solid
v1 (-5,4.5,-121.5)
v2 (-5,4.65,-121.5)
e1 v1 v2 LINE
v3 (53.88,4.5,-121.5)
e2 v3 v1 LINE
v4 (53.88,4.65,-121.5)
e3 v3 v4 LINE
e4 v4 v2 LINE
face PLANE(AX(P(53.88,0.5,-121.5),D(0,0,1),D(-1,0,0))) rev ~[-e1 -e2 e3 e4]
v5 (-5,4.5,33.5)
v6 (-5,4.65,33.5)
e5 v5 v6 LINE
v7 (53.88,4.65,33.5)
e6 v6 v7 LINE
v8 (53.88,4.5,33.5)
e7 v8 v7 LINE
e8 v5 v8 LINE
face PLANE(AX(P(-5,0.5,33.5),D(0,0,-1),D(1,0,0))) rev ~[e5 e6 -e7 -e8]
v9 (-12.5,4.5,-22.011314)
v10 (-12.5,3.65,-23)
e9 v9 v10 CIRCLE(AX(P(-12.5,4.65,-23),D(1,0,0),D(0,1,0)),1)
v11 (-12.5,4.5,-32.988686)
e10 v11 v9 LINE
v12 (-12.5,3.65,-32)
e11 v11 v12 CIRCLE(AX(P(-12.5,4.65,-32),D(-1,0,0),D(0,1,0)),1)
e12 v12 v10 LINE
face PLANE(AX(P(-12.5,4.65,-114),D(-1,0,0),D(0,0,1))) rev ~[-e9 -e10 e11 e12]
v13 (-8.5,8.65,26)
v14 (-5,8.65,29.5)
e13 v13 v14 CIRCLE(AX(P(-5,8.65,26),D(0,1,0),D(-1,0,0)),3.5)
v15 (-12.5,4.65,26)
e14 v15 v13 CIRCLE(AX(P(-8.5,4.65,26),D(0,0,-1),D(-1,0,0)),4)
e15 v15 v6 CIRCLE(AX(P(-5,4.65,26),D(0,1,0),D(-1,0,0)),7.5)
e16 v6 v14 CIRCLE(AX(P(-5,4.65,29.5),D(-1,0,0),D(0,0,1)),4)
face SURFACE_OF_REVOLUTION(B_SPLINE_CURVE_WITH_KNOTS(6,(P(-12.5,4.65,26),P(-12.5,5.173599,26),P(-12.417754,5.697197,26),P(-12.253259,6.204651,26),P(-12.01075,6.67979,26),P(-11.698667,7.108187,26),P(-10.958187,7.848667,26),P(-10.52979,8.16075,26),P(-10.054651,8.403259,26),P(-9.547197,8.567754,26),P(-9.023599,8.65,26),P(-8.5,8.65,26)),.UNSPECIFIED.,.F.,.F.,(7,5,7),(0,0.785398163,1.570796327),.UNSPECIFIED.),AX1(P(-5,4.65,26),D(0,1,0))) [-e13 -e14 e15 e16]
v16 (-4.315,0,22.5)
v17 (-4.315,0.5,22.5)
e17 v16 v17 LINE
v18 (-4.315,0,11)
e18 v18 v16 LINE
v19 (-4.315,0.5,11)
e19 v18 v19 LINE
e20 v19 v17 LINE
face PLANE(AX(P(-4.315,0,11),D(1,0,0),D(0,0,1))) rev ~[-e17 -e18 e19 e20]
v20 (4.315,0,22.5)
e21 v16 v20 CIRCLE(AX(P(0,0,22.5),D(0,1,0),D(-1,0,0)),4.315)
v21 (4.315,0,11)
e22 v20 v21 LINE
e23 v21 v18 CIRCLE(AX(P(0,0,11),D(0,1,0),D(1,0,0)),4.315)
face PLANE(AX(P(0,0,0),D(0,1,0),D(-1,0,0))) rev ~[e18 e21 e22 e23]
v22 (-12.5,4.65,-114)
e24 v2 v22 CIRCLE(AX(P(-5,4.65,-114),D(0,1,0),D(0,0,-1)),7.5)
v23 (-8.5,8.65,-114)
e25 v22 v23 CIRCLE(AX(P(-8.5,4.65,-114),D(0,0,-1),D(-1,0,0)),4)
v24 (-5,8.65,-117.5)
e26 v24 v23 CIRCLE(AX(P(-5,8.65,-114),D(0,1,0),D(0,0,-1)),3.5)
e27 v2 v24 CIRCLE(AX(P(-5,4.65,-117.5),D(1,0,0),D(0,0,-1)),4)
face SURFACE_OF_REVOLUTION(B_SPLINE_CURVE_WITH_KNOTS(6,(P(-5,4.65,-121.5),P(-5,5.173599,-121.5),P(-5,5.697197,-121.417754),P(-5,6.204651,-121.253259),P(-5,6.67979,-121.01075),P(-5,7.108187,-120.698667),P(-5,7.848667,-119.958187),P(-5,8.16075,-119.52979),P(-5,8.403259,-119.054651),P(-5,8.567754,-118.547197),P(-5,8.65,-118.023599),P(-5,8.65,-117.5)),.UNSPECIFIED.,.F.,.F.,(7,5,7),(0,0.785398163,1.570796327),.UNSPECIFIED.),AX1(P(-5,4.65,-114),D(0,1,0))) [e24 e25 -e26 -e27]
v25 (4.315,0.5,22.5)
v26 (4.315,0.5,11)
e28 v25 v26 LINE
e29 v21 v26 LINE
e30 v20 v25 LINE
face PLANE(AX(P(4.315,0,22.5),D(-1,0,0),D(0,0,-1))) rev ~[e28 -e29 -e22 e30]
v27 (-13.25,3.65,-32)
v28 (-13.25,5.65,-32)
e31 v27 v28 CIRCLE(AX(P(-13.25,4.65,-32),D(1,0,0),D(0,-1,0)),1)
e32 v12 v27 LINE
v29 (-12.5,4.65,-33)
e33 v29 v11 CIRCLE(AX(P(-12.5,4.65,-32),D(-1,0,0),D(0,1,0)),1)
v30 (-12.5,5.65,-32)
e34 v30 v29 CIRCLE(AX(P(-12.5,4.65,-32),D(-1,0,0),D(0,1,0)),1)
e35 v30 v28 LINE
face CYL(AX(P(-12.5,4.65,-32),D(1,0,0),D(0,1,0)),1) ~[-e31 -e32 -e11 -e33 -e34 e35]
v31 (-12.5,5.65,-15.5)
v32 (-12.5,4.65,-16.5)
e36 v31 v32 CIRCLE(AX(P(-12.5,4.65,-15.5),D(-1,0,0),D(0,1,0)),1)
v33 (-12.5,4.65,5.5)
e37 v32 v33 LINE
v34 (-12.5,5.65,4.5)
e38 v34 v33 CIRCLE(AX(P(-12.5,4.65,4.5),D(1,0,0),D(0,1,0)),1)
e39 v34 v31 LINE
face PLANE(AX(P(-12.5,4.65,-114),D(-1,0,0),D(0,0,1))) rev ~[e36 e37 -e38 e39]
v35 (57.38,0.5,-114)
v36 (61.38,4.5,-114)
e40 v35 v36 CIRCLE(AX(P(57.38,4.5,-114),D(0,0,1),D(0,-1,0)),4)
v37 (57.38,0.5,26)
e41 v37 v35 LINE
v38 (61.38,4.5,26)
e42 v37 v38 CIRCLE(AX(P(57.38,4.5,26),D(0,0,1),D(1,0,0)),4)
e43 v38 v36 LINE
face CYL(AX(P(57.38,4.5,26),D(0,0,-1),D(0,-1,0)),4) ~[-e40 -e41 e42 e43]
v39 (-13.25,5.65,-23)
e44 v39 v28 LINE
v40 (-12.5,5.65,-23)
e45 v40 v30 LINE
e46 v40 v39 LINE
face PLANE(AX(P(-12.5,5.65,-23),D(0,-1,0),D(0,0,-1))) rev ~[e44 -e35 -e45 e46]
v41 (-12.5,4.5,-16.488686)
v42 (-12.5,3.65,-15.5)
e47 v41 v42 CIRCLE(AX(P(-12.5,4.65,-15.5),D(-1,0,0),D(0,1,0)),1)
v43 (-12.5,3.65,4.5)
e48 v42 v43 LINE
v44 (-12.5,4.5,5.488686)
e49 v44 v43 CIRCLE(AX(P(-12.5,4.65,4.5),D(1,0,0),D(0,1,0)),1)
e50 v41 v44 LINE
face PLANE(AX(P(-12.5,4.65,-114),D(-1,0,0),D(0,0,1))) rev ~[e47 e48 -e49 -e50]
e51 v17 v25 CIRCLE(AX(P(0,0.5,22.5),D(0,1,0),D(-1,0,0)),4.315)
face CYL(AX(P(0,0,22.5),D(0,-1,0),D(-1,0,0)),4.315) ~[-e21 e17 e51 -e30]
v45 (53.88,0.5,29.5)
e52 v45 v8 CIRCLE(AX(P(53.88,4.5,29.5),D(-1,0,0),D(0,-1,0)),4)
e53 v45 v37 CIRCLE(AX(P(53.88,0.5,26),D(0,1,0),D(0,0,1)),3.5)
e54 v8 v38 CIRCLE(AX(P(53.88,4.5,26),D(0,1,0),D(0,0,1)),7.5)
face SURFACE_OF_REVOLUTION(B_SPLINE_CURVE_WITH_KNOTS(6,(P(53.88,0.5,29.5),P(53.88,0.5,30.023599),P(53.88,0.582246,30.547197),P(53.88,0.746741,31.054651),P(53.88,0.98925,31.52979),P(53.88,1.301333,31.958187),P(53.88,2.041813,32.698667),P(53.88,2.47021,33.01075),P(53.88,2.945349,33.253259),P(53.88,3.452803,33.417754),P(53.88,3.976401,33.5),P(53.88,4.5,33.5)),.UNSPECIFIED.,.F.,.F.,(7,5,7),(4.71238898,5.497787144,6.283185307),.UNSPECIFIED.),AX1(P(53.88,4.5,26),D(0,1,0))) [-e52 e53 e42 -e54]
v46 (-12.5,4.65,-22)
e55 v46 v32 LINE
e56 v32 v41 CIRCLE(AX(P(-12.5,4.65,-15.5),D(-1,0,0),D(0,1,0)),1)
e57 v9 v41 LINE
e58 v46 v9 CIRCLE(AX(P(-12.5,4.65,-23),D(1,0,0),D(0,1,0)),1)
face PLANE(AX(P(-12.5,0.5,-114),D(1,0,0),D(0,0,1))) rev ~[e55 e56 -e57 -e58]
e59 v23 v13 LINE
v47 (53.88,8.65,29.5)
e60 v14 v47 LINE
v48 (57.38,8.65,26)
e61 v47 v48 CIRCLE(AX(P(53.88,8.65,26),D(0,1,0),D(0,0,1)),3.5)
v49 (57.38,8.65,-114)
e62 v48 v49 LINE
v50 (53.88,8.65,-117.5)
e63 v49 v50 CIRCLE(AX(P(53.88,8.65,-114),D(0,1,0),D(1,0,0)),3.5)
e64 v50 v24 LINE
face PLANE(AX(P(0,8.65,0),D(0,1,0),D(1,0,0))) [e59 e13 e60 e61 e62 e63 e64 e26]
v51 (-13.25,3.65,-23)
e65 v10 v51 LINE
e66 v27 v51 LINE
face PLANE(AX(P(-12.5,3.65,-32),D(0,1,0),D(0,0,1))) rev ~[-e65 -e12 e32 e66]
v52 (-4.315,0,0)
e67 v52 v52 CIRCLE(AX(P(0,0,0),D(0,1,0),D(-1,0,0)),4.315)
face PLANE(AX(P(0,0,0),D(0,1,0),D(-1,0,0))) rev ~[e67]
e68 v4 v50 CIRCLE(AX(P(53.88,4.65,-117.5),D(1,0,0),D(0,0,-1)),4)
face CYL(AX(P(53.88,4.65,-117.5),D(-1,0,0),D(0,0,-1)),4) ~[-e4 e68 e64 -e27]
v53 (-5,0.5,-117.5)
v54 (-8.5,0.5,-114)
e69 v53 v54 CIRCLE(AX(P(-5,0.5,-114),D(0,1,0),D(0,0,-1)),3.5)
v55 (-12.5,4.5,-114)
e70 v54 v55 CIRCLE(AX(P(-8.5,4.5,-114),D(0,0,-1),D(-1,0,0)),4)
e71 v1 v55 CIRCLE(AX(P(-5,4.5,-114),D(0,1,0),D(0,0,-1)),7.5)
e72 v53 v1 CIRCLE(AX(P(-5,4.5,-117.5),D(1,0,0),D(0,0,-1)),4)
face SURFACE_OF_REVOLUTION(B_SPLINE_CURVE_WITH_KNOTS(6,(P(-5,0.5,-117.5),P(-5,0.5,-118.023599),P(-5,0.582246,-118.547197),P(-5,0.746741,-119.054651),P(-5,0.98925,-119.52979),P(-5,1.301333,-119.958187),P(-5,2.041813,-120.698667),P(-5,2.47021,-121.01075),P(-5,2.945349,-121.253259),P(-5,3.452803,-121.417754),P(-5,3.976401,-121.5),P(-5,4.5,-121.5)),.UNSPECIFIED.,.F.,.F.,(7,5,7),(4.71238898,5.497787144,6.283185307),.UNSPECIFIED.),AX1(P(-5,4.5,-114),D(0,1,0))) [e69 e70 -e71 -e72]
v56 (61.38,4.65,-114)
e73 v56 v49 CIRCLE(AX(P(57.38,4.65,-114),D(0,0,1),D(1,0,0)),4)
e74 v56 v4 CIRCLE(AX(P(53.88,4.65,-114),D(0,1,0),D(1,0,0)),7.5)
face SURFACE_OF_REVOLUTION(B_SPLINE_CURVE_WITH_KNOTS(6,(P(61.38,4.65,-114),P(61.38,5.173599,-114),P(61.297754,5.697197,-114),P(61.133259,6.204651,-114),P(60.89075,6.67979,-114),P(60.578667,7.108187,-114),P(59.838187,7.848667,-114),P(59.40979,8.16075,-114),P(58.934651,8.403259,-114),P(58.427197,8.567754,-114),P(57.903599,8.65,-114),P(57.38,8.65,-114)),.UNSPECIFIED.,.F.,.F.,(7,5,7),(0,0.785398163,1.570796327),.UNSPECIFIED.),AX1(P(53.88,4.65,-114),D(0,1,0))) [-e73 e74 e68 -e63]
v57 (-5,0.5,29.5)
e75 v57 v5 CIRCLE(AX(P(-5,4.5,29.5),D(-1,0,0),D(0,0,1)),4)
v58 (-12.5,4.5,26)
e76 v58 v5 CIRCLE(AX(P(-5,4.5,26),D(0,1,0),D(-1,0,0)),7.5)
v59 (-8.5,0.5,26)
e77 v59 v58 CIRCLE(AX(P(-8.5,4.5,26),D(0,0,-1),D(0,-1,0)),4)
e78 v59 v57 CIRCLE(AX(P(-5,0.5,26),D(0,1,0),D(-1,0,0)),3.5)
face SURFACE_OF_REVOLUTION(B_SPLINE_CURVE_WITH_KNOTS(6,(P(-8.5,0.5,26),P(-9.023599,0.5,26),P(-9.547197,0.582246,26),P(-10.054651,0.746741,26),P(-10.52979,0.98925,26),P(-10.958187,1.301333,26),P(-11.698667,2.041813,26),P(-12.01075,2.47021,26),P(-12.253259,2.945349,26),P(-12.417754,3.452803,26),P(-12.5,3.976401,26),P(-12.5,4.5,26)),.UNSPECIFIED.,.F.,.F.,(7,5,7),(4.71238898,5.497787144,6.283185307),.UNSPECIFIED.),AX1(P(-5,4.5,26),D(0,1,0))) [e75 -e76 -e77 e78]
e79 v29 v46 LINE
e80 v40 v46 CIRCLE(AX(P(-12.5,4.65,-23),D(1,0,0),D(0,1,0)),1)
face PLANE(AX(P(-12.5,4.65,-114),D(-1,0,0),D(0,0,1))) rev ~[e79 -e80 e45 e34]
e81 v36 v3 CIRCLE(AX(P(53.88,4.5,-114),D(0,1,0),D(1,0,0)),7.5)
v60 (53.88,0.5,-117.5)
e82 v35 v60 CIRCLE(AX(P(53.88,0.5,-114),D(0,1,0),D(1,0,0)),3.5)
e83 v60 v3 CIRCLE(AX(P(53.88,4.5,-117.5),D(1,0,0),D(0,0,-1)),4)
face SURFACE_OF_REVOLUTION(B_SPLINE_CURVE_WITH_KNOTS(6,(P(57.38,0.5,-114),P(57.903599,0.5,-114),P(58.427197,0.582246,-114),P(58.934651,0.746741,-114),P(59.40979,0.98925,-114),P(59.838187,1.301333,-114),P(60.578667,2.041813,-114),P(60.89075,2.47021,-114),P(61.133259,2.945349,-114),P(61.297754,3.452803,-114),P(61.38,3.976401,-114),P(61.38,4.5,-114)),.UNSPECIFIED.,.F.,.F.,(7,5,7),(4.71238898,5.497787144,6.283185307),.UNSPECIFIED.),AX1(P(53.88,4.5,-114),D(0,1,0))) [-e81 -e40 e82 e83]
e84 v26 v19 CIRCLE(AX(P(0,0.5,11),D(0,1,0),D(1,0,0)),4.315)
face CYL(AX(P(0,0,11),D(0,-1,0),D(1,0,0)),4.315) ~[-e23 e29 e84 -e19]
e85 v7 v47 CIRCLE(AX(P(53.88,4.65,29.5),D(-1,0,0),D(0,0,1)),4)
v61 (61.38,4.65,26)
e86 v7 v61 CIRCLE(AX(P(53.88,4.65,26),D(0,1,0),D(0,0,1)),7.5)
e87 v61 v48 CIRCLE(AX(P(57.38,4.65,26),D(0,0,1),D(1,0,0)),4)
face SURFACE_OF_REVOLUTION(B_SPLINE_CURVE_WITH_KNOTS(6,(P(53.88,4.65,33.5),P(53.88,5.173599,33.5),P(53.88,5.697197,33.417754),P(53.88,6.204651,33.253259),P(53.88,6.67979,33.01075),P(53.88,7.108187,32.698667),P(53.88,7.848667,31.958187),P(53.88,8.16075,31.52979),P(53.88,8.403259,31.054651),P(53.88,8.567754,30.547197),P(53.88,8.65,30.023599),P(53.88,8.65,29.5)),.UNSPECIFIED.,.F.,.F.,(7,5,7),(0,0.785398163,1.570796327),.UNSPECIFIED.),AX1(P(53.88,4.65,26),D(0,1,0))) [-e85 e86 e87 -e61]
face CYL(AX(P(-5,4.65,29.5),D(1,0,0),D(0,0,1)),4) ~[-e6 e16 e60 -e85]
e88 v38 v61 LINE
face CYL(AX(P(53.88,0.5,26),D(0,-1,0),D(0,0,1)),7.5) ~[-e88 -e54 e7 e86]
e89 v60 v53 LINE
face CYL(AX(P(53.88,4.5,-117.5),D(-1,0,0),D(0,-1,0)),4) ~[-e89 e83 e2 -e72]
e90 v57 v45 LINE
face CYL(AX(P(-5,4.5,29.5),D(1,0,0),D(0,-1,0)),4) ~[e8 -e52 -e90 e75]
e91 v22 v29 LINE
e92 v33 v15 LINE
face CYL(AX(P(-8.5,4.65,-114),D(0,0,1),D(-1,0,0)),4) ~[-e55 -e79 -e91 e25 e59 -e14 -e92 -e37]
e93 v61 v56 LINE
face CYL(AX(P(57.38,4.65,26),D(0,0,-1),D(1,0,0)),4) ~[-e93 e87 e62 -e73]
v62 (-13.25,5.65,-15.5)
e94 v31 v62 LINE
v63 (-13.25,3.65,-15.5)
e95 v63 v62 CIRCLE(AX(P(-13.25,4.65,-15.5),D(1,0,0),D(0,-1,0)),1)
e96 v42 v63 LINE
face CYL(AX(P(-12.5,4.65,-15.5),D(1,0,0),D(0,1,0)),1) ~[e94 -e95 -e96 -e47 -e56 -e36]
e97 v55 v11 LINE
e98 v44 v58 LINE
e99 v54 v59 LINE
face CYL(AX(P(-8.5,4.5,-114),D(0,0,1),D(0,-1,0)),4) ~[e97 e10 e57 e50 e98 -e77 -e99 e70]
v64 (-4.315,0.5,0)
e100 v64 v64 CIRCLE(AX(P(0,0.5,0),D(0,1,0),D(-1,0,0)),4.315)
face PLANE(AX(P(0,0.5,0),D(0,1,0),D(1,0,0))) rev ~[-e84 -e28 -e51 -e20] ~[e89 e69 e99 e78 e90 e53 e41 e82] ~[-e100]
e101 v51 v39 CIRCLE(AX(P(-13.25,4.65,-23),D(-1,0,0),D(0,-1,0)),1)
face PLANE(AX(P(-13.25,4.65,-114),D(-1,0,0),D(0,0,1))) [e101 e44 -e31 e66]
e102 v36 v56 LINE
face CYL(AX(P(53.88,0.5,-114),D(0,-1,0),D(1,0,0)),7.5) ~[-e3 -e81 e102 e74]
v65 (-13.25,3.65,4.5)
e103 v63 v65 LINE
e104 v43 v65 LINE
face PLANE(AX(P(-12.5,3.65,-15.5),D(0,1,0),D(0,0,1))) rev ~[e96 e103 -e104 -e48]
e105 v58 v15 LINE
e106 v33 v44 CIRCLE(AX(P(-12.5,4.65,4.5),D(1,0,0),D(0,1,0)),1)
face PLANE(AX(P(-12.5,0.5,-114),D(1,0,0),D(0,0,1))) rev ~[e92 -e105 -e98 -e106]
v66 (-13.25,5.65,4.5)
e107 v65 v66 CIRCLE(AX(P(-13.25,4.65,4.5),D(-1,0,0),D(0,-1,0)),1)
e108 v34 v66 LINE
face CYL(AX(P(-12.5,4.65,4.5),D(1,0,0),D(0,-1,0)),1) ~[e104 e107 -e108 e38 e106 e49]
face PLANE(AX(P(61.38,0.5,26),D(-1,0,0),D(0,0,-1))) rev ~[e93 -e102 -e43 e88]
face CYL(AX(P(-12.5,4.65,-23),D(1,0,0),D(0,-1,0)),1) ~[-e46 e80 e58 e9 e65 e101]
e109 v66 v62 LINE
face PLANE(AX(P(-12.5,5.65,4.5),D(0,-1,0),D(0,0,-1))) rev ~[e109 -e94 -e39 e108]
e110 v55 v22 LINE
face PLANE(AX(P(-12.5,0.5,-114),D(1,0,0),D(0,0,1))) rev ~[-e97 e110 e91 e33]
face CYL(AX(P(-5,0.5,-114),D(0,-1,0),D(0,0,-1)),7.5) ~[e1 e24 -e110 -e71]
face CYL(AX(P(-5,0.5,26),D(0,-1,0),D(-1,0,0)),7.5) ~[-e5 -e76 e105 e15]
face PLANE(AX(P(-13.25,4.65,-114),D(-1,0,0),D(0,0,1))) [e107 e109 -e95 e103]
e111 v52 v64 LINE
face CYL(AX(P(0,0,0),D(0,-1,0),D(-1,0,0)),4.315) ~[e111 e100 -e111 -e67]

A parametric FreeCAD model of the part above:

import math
import FreeCAD as App
import Part
import Sketcher
Q = App.Units.Quantity


def edges_at(feature, points):
    """Names of the edges that pass closest to the given points."""
    edges = feature.Shape.Edges
    near = lambda p: min(range(len(edges)), key=lambda i: edges[i].distToShape(Part.Vertex(*p))[0])
    return sorted({f"Edge{near(p) + 1}" for p in points})

doc = App.newDocument("Part")
params = doc.addObject("Spreadsheet::Sheet", "Params")
for row, (alias, value) in enumerate([
    ("sketch1_diameter", "8.63 mm"),
    ("sketch1_height", "11.5 mm"),
    ("pad1_length", "0.5 mm"),
    ("sketch2_radius", "7.5 mm"),
    ("sketch2_height", "140 mm"),
    ("pad2_length", "8.15 mm"),
    ("fillet_radius", "4 mm"),
    ("sketch3_radius", "1 mm"),
    ("sketch3_height", "9 mm"),
    ("sketch3_height2", "20 mm"),
    ("pad3_length", "0.75 mm"),
], start=1):
    params.set(f"A{row}", alias)
    params.set(f"B{row}", "=" + value)
    params.setAlias(f"B{row}", alias)

body = doc.addObject("PartDesign::Body", "Body")
body.AllowCompound = True

sketch1 = body.newObject("Sketcher::SketchObject", "Sketch")
sketch1.AttachmentSupport = (doc.getObject("XZ_Plane"), [""])
sketch1.MapMode = "FlatFace"
sketch1.addGeometry([
    Part.Circle(App.Vector(0, 0, 0), App.Vector(0, 0, 1), 4.3),
    Part.ArcOfCircle(Part.Circle(App.Vector(0, 11, 0), App.Vector(0, 0, 1), 4.3), math.radians(180), math.radians(360)),
    Part.LineSegment(App.Vector(-4.3, 11, 0), App.Vector(-4.3, 22.5, 0)),
    Part.ArcOfCircle(Part.Circle(App.Vector(0, 22.5, 0), App.Vector(0, 0, 1), 4.3), math.radians(0), math.radians(180)),
    Part.LineSegment(App.Vector(4.3, 22.5, 0), App.Vector(4.3, 11, 0)),
], False)
sketch1.addConstraint([
    Sketcher.Constraint("Tangent", 1, 1, 2, 1),
    Sketcher.Constraint("Tangent", 2, 2, 3, 2),
    Sketcher.Constraint("Tangent", 3, 1, 4, 1),
    Sketcher.Constraint("Tangent", 4, 2, 1, 2),
    Sketcher.Constraint("Vertical", 2),
    Sketcher.Constraint("Vertical", 4),
    Sketcher.Constraint("Coincident", 0, 3, -1, 1),
    Sketcher.Constraint("Equal", 0, 1),
    Sketcher.Constraint("PointOnObject", 1, 3, -2),
    Sketcher.Constraint("Diameter", 0, Q("8.63 mm")),
    Sketcher.Constraint("DistanceY", 2, 1, 2, 2, Q("11.5 mm")),
    Sketcher.Constraint("DistanceY", -1, 1, 1, 3, Q("11 mm")),
])
sketch1.setExpression("Constraints[9]", "Params.sketch1_diameter")
sketch1.setExpression("Constraints[10]", "Params.sketch1_height")
pad1 = body.newObject("PartDesign::Pad", "Pad")
pad1.Profile = sketch1
pad1.setExpression("Length", "Params.pad1_length")
pad1.Reversed = True

sketch2 = body.newObject("Sketcher::SketchObject", "Sketch001")
sketch2.AttachmentSupport = (doc.getObject("XZ_Plane"), [""])
sketch2.MapMode = "FlatFace"
sketch2.AttachmentOffset = App.Placement(App.Vector(0, 0, -0.5), App.Rotation())
sketch2.addGeometry([
    Part.ArcOfCircle(Part.Circle(App.Vector(-5, 26, 0), App.Vector(0, 0, 1), 8), math.radians(90), math.radians(180)),
    Part.LineSegment(App.Vector(-5, 34, 0), App.Vector(54, 34, 0)),
    Part.ArcOfCircle(Part.Circle(App.Vector(54, 26, 0), App.Vector(0, 0, 1), 8), math.radians(0), math.radians(90)),
    Part.LineSegment(App.Vector(61, 26, 0), App.Vector(61, -114, 0)),
    Part.ArcOfCircle(Part.Circle(App.Vector(54, -114, 0), App.Vector(0, 0, 1), 8), math.radians(-90), math.radians(0)),
    Part.LineSegment(App.Vector(54, -122, 0), App.Vector(-5, -122, 0)),
    Part.ArcOfCircle(Part.Circle(App.Vector(-5, -114, 0), App.Vector(0, 0, 1), 8), math.radians(180), math.radians(270)),
    Part.LineSegment(App.Vector(-12, -114, 0), App.Vector(-12, 26, 0)),
], False)
sketch2.addConstraint([
    Sketcher.Constraint("Tangent", 0, 1, 1, 1),
    Sketcher.Constraint("Tangent", 1, 2, 2, 2),
    Sketcher.Constraint("Tangent", 2, 1, 3, 1),
    Sketcher.Constraint("Tangent", 3, 2, 4, 2),
    Sketcher.Constraint("Tangent", 4, 1, 5, 1),
    Sketcher.Constraint("Tangent", 5, 2, 6, 2),
    Sketcher.Constraint("Tangent", 6, 1, 7, 1),
    Sketcher.Constraint("Tangent", 7, 2, 0, 2),
    Sketcher.Constraint("Horizontal", 1),
    Sketcher.Constraint("Vertical", 3),
    Sketcher.Constraint("Horizontal", 5),
    Sketcher.Constraint("Vertical", 7),
    Sketcher.Constraint("Equal", 0, 2),
    Sketcher.Constraint("Equal", 2, 4),
    Sketcher.Constraint("Equal", 4, 6),
    Sketcher.Constraint("Radius", 0, Q("7.5 mm")),
    Sketcher.Constraint("DistanceY", -1, 1, 0, 1, Q("33.5 mm")),
    Sketcher.Constraint("DistanceX", 6, 1, -1, 1, Q("12.5 mm")),
    Sketcher.Constraint("DistanceY", 3, 2, 3, 1, Q("140 mm")),
    Sketcher.Constraint("DistanceX", 6, 1, 3, 2, Q("73.88 mm")),
])
sketch2.setExpression("Constraints[15]", "Params.sketch2_radius")
sketch2.setExpression("Constraints[18]", "Params.sketch2_height")
pad2 = body.newObject("PartDesign::Pad", "Pad001")
pad2.Profile = sketch2
pad2.setExpression("Length", "Params.pad2_length")
pad2.Reversed = True
doc.recompute()

fillet = body.newObject("PartDesign::Fillet", "Fillet")
fillet.Base = (pad2, edges_at(pad2, [
    (-10.303, 0.5, -119.303),
    (24.44, 0.5, -121.5),
    (59.183, 0.5, -119.303),
    (61.38, 0.5, -44),
    (59.183, 0.5, 31.303),
    (24.44, 0.5, 33.5),
    (-10.303, 0.5, 31.303),
    (-12.5, 0.5, -44),
    (-10.303, 8.65, 31.303),
    (24.44, 8.65, 33.5),
    (59.183, 8.65, 31.303),
    (61.38, 8.65, -44),
    (59.183, 8.65, -119.303),
    (24.44, 8.65, -121.5),
    (-10.303, 8.65, -119.303),
    (-12.5, 8.65, -44),
]))
fillet.setExpression("Radius", "Params.fillet_radius")

sketch3 = body.newObject("Sketcher::SketchObject", "Sketch002")
sketch3.AttachmentSupport = (doc.getObject("YZ_Plane"), [""])
sketch3.MapMode = "FlatFace"
sketch3.AttachmentOffset = App.Placement(App.Vector(0, 0, -12.5), App.Rotation())
sketch3.addGeometry([
    Part.ArcOfCircle(Part.Circle(App.Vector(4.7, -32, 0), App.Vector(0, 0, 1), 1), math.radians(180), math.radians(360)),
    Part.LineSegment(App.Vector(3.6, -32, 0), App.Vector(3.6, -23, 0)),
    Part.ArcOfCircle(Part.Circle(App.Vector(4.7, -23, 0), App.Vector(0, 0, 1), 1), math.radians(0), math.radians(180)),
    Part.LineSegment(App.Vector(5.7, -23, 0), App.Vector(5.7, -32, 0)),
    Part.ArcOfCircle(Part.Circle(App.Vector(4.7, -15.5, 0), App.Vector(0, 0, 1), 1), math.radians(180), math.radians(360)),
    Part.LineSegment(App.Vector(3.6, -15.5, 0), App.Vector(3.6, 4.5, 0)),
    Part.ArcOfCircle(Part.Circle(App.Vector(4.7, 4.5, 0), App.Vector(0, 0, 1), 1), math.radians(0), math.radians(180)),
    Part.LineSegment(App.Vector(5.7, 4.5, 0), App.Vector(5.7, -15.5, 0)),
], False)
sketch3.addConstraint([
    Sketcher.Constraint("Tangent", 0, 1, 1, 1),
    Sketcher.Constraint("Tangent", 1, 2, 2, 2),
    Sketcher.Constraint("Tangent", 2, 1, 3, 1),
    Sketcher.Constraint("Tangent", 3, 2, 0, 2),
    Sketcher.Constraint("Tangent", 4, 1, 5, 1),
    Sketcher.Constraint("Tangent", 5, 2, 6, 2),
    Sketcher.Constraint("Tangent", 6, 1, 7, 1),
    Sketcher.Constraint("Tangent", 7, 2, 4, 2),
    Sketcher.Constraint("Vertical", 1),
    Sketcher.Constraint("Vertical", 3),
    Sketcher.Constraint("Vertical", 5),
    Sketcher.Constraint("Vertical", 7),
    Sketcher.Constraint("Equal", 2, 4),
    Sketcher.Constraint("Vertical", 2, 3, 4, 3),
    Sketcher.Constraint("Radius", 0, Q("1 mm")),
    Sketcher.Constraint("DistanceY", 1, 1, 1, 2, Q("9 mm")),
    Sketcher.Constraint("DistanceY", 5, 1, 5, 2, Q("20 mm")),
    Sketcher.Constraint("DistanceY", 2, 3, 4, 3, Q("7.5 mm")),
    Sketcher.Constraint("DistanceY", 0, 3, -1, 1, Q("32 mm")),
    Sketcher.Constraint("DistanceX", -1, 1, 0, 3, Q("4.65 mm")),
])
sketch3.setExpression("Constraints[14]", "Params.sketch3_radius")
sketch3.setExpression("Constraints[15]", "Params.sketch3_height")
sketch3.setExpression("Constraints[16]", "Params.sketch3_height2")
pad3 = body.newObject("PartDesign::Pad", "Pad002")
pad3.Profile = sketch3
pad3.setExpression("Length", "Params.pad3_length")
pad3.Reversed = True

doc.recompute()
